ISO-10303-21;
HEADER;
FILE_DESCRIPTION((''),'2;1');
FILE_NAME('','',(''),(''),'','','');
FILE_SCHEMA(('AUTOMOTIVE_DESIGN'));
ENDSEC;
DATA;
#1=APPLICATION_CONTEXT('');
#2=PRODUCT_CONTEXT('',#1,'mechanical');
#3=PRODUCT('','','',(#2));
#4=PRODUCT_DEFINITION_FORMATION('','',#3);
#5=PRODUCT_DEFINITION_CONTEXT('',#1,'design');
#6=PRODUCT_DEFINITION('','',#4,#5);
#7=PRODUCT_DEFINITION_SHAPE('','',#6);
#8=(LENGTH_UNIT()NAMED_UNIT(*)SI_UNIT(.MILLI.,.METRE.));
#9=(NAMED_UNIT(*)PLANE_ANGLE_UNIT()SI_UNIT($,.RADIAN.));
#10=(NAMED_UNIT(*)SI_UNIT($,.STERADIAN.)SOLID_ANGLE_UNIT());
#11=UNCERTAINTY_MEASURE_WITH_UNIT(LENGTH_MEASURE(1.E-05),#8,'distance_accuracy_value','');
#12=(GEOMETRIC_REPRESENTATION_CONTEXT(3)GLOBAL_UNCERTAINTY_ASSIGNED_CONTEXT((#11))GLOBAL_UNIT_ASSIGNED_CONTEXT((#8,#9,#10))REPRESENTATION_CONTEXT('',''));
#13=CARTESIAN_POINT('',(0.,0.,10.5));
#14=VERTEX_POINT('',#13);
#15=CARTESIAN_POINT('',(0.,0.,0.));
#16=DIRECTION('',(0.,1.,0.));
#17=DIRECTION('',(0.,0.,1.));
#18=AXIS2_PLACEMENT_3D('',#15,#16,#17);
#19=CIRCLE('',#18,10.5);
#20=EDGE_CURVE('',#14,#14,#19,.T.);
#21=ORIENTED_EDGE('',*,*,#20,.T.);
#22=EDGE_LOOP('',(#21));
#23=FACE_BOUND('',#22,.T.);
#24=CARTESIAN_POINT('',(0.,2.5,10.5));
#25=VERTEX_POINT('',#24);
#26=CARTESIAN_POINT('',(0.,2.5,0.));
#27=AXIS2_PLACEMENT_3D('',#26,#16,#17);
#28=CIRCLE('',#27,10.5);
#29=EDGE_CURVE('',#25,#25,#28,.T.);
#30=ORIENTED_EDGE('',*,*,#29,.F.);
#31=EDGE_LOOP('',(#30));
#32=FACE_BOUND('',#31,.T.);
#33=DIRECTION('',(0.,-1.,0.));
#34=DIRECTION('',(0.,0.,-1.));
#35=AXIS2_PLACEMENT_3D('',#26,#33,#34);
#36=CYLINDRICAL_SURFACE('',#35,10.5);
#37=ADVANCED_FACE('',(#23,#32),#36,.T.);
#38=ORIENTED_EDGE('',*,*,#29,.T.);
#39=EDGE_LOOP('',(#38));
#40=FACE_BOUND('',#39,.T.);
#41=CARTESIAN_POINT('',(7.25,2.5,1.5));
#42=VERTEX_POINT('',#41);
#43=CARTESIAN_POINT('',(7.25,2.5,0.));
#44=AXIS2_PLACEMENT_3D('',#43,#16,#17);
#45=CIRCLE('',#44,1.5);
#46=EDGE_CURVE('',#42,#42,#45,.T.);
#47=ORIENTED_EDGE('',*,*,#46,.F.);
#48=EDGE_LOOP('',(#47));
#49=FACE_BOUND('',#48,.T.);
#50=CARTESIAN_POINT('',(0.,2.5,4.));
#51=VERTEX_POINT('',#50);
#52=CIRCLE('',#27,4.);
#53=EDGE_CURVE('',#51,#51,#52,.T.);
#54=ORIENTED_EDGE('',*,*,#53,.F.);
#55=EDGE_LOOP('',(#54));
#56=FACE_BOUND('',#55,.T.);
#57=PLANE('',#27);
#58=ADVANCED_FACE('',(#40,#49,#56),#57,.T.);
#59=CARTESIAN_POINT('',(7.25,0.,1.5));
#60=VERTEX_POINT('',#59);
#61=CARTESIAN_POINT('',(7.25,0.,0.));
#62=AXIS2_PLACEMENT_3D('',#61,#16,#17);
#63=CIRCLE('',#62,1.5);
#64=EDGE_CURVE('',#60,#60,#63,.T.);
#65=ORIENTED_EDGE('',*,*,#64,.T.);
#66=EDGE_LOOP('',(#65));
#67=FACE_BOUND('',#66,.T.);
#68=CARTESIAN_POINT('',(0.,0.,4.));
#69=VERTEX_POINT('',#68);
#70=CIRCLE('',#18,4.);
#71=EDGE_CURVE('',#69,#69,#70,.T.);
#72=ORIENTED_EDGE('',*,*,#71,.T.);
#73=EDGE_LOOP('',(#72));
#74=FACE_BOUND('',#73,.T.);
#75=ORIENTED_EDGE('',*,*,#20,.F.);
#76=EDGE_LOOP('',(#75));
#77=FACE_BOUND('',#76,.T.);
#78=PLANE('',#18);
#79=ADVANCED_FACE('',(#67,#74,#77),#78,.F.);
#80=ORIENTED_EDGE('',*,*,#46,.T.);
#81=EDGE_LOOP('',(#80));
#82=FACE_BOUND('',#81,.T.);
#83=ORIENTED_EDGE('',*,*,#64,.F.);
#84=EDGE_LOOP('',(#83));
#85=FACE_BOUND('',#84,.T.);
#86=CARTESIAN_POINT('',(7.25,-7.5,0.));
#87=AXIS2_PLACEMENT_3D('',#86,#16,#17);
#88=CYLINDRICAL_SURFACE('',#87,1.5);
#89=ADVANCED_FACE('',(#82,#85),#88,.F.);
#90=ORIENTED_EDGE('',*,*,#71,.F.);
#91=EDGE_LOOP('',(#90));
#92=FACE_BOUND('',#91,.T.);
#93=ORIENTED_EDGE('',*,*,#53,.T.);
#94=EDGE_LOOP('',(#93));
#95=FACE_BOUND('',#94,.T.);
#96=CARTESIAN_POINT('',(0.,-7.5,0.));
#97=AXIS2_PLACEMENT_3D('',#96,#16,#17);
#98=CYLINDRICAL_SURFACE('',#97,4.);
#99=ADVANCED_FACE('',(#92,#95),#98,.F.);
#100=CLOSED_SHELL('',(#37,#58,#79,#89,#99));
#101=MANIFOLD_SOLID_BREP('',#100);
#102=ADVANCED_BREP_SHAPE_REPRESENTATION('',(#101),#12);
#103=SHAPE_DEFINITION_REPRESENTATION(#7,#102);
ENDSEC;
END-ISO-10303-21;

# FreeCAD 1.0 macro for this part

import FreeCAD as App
import Part
import Sketcher
from FreeCAD import Vector
Q = App.Units.Quantity

doc = App.newDocument("Part")
body = doc.addObject("PartDesign::Body", "Body")

sketch1 = body.newObject("Sketcher::SketchObject", "Sketch")
sketch1.AttachmentSupport = (doc.getObject("XZ_Plane"), [""])
sketch1.MapMode = "FlatFace"
sketch1.addGeometry(Part.Circle(Vector(0, 0, 0), Vector(0, 0, 1), 10), False)
sketch1.addConstraint([
    Sketcher.Constraint("Coincident", 0, 3, -1, 1),
    Sketcher.Constraint("Diameter", 0, Q("21 mm")),
])
pad1 = body.newObject("PartDesign::Pad", "Pad")
pad1.Profile = sketch1
pad1.Length = 2.5
pad1.Reversed = True

sketch2 = body.newObject("Sketcher::SketchObject", "Sketch001")
sketch2.AttachmentSupport = (doc.getObject("XZ_Plane"), [""])
sketch2.MapMode = "FlatFace"
sketch2.AttachmentOffset = App.Placement(Vector(0, 0, -2.5), App.Rotation())
sketch2.addGeometry([
    Part.Circle(Vector(0, 0, 0), Vector(0, 0, 1), 4),
    Part.Circle(Vector(7.2, 0, 0), Vector(0, 0, 1), 1.5),
], False)
sketch2.addConstraint([
    Sketcher.Constraint("Coincident", 0, 3, -1, 1),
    Sketcher.Constraint("PointOnObject", 1, 3, -1),
    Sketcher.Constraint("Diameter", 0, Q("8 mm")),
    Sketcher.Constraint("Diameter", 1, Q("3 mm")),
    Sketcher.Constraint("DistanceX", -1, 1, 1, 3, Q("7.25 mm")),
])
pocket1 = body.newObject("PartDesign::Pocket", "Pocket")
pocket1.Profile = sketch2
pocket1.Length = 10
pocket1.Reversed = True

doc.recompute()
